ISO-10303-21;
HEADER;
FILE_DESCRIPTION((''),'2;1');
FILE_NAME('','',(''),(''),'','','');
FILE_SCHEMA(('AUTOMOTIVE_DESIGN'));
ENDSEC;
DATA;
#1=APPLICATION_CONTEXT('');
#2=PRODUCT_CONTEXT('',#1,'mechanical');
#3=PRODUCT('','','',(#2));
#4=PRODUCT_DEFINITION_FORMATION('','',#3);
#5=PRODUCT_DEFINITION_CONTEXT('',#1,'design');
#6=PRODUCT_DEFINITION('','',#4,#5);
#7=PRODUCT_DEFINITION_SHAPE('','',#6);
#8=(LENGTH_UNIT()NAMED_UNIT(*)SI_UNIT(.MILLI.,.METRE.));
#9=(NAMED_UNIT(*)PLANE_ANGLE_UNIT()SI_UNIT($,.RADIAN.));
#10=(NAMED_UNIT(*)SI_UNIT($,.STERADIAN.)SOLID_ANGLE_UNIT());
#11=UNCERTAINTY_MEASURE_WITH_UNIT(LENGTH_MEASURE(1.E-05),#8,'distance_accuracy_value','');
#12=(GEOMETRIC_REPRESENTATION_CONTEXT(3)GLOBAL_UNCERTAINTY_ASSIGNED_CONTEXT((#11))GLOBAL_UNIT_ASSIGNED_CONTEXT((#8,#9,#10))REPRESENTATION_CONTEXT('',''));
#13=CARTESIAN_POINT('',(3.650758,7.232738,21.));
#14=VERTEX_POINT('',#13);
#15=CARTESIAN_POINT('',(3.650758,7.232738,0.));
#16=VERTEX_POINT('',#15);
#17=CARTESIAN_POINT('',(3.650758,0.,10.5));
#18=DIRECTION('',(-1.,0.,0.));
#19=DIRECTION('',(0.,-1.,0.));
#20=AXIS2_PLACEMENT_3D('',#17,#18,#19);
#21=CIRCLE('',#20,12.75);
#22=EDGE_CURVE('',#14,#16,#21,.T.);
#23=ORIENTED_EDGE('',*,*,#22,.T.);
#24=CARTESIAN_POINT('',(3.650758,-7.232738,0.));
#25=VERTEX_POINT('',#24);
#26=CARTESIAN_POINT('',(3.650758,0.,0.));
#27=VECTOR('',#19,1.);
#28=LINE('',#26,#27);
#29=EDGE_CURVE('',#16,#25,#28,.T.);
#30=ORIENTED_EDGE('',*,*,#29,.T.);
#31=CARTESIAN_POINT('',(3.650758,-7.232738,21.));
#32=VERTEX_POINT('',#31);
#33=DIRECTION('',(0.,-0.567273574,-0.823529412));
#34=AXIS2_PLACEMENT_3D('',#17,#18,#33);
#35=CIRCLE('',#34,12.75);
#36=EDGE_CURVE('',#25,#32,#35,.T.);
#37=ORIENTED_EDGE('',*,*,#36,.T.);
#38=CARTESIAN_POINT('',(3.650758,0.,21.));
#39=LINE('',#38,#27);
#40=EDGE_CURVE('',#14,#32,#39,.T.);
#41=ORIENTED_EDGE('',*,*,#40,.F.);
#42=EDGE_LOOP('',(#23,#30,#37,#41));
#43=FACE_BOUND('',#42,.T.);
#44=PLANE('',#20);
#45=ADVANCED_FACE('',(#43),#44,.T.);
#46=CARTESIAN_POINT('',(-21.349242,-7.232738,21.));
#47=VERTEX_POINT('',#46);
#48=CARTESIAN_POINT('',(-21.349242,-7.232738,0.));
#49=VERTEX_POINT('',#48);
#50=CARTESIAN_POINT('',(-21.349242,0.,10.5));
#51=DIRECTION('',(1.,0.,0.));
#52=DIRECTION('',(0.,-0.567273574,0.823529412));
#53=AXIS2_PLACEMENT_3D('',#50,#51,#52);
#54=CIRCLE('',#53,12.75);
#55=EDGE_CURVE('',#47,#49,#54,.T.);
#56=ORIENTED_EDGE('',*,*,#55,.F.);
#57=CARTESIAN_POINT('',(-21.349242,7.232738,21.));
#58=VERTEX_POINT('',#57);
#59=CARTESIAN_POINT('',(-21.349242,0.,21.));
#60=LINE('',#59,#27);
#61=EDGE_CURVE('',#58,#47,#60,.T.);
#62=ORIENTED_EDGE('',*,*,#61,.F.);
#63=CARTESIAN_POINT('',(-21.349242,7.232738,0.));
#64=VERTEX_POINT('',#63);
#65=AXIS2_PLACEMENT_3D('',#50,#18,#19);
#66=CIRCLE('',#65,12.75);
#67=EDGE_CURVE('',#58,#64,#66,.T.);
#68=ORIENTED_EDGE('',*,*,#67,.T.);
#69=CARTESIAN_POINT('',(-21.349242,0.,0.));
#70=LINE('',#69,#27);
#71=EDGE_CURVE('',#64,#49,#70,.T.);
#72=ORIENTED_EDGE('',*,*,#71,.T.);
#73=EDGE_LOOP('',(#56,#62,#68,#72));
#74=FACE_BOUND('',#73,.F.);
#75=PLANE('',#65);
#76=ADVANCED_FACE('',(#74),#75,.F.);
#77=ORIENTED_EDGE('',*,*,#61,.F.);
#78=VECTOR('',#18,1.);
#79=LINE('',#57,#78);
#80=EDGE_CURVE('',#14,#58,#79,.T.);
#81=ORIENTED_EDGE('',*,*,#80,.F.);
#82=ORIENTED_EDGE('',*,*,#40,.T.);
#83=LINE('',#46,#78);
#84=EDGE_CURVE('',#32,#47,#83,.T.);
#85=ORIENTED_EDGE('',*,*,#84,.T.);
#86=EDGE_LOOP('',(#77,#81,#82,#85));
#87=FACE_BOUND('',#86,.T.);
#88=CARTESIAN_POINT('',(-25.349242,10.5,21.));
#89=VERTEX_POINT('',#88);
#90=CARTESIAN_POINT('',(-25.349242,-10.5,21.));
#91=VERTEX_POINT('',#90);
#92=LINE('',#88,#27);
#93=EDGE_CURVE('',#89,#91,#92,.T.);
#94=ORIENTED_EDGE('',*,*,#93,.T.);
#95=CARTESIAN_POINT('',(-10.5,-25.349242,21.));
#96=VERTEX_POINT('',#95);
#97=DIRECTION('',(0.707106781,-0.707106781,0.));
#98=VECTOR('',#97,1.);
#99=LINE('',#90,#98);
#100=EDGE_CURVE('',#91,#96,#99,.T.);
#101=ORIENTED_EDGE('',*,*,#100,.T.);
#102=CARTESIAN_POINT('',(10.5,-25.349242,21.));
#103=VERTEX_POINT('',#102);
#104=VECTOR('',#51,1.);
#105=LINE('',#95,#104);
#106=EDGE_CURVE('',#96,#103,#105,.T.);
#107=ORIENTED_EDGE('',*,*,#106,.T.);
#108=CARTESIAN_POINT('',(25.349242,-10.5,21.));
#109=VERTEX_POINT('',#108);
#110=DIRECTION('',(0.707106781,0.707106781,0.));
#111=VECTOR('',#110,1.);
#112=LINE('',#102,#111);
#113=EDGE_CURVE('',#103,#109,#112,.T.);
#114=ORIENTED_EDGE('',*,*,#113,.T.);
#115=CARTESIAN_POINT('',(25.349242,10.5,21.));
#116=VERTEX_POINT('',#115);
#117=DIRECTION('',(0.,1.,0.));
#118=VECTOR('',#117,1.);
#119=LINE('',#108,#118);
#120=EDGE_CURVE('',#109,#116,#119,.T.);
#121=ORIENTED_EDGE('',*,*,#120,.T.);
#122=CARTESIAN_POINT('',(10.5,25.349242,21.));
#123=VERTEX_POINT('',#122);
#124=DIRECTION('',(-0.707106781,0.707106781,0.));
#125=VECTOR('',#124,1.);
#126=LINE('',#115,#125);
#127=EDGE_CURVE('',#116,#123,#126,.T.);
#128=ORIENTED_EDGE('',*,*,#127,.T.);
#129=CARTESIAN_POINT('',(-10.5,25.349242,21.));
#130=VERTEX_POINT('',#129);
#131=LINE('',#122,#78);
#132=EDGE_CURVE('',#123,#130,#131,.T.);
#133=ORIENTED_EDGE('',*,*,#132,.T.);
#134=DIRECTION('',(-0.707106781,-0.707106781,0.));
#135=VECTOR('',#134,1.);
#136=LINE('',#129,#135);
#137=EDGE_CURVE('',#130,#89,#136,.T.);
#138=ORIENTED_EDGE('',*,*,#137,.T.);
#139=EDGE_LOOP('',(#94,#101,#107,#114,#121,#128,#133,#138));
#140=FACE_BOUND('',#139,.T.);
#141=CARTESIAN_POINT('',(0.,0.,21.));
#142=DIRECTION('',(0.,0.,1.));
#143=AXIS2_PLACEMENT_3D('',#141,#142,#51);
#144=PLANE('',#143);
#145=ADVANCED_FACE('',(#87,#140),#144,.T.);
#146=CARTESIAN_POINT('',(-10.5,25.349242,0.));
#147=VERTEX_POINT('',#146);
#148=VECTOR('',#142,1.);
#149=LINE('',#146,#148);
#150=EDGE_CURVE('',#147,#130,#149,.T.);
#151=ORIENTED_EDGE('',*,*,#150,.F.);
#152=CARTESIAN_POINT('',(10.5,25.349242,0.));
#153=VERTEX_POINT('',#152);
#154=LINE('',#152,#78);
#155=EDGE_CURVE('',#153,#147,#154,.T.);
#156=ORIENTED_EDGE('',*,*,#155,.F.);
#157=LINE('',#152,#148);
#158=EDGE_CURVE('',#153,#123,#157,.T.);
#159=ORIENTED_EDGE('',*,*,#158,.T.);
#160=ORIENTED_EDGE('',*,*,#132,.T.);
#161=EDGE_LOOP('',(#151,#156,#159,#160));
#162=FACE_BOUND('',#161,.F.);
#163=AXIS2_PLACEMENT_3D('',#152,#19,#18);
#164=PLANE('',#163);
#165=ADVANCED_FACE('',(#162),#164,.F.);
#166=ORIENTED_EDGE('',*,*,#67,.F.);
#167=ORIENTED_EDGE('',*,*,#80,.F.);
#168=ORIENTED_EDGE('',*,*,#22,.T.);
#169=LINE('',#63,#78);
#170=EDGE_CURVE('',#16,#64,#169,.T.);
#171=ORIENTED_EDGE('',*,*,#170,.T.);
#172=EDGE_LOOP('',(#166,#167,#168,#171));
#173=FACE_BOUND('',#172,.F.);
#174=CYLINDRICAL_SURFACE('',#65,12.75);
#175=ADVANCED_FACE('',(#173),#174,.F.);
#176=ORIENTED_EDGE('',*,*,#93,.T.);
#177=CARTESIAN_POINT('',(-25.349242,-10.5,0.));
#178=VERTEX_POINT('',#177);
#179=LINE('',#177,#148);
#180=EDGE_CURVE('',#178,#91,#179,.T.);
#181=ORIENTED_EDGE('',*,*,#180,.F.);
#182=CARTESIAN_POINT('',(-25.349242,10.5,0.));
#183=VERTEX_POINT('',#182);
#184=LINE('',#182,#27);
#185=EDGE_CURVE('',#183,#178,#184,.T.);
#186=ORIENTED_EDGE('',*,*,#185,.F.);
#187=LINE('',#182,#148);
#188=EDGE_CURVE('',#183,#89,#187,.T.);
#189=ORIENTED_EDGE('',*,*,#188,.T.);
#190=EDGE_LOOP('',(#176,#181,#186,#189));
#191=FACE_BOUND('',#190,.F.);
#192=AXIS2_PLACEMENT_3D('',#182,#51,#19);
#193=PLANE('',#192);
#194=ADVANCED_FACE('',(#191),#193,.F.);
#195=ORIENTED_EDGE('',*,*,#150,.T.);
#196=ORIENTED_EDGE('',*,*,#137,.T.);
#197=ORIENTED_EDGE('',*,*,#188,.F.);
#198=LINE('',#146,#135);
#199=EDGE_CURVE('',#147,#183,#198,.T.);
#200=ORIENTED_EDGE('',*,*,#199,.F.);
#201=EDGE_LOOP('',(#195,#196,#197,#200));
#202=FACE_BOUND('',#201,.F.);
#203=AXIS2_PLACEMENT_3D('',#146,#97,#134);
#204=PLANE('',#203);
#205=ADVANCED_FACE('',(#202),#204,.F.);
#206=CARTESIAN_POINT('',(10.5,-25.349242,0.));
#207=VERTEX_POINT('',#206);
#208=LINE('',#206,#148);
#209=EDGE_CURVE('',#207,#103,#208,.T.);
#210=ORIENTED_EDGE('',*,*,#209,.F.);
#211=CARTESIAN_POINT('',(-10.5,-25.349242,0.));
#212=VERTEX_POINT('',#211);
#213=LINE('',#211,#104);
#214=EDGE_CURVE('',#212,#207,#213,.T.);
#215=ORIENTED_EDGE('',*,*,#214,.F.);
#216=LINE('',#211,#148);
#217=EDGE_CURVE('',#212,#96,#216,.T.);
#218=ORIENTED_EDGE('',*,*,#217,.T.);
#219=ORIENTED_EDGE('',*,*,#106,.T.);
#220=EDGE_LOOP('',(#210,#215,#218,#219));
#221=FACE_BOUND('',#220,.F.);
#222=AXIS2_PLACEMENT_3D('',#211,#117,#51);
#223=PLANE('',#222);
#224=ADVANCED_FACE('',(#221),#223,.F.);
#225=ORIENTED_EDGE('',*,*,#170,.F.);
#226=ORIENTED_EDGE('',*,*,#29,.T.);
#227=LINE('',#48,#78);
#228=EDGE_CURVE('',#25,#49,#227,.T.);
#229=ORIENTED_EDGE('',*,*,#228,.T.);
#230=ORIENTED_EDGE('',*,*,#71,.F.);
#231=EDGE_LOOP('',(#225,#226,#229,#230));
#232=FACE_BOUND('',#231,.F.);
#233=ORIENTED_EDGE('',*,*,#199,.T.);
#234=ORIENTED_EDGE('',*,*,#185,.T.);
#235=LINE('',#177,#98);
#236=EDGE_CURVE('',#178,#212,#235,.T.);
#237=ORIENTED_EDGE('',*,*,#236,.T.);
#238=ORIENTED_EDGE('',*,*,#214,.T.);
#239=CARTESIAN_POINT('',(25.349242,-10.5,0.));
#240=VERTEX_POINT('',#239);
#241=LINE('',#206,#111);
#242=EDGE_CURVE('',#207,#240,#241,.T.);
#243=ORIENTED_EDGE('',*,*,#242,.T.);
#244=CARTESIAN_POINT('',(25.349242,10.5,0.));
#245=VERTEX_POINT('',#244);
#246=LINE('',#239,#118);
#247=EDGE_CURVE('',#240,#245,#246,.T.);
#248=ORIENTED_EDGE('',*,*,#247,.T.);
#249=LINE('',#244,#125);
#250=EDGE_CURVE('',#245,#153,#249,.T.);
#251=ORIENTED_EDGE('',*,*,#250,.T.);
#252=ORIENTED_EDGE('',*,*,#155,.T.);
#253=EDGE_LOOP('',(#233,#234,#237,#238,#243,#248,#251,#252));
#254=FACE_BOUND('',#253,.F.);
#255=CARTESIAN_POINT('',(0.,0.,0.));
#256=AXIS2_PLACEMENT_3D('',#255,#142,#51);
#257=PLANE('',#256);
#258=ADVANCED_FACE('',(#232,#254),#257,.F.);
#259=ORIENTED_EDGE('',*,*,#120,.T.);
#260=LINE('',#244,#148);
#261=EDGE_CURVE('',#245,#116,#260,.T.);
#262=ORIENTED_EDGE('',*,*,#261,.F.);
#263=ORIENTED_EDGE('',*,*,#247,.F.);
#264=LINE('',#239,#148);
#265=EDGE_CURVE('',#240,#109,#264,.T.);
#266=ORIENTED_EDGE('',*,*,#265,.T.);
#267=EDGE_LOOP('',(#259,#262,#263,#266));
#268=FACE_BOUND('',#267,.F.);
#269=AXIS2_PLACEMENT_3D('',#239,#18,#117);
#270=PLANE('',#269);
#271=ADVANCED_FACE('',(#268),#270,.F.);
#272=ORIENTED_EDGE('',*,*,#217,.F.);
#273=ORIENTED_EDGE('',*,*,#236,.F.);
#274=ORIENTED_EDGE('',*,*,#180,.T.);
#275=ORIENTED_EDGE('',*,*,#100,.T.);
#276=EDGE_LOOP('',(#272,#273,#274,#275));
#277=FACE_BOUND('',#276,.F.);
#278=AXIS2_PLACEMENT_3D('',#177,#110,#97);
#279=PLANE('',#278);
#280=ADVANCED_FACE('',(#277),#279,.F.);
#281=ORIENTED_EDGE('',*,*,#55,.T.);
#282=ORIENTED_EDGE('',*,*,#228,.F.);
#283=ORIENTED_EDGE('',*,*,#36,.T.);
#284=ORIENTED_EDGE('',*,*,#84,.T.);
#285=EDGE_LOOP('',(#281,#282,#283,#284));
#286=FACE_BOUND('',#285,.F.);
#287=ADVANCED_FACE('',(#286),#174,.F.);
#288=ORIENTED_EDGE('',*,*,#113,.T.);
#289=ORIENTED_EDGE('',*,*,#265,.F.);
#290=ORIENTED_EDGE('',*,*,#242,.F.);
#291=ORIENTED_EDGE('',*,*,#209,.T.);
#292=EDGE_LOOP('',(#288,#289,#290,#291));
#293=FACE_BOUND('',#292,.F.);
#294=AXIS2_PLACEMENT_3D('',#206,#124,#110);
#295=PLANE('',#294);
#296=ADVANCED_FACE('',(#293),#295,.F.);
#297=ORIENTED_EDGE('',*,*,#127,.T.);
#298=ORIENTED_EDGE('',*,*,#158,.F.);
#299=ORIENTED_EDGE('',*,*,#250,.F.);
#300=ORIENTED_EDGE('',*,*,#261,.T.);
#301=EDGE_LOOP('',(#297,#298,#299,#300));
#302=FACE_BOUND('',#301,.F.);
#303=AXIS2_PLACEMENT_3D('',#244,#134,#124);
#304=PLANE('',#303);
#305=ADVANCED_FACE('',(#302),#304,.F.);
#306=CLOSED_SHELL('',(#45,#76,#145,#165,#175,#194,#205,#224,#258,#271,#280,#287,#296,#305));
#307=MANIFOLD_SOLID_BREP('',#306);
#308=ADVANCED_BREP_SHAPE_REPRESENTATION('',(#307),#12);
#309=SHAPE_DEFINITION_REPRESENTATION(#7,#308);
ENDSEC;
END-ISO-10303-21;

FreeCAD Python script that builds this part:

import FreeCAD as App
import Part
import Sketcher


def add_polygon(sketch, points):
    """Adds a closed chain of lines whose ends are joined by coincident constraints."""
    first, n = sketch.GeometryCount, len(points)
    for a, b in zip(points, points[1:] + points[:1]):
        sketch.addGeometry(Part.LineSegment(App.Vector(*a, 0), App.Vector(*b, 0)), False)
    for i in range(n):
        sketch.addConstraint(Sketcher.Constraint("Coincident", first + i, 2, first + (i + 1) % n, 1))

doc = App.newDocument("Part")
params = doc.addObject("Spreadsheet::Sheet", "Params")
for row, (alias, value) in enumerate([
    ("sketch1_width", "21 mm"),
    ("sketch1_length", "21 mm"),
    ("pad1_length", "21 mm"),
    ("sketch2_diameter", "25.5 mm"),
    ("pocket1_length", "25 mm"),
], start=1):
    params.set(f"A{row}", alias)
    params.set(f"B{row}", "=" + value)
    params.setAlias(f"B{row}", alias)

body = doc.addObject("PartDesign::Body", "Body")

# Sketch on XY plane
sketch1 = body.newObject("Sketcher::SketchObject", "Sketch")
sketch1.AttachmentSupport = (doc.getObject("XY_Plane"), [""])
sketch1.MapMode = "FlatFace"
add_polygon(sketch1, [(25, -10), (25, 10), (10, 25), (-10, 25), (-25, 10), (-25, -10), (-10, -25), (10, -25)])  # lines 0-7
sketch1.addConstraint([
    Sketcher.Constraint("Vertical", 0),
    Sketcher.Constraint("Horizontal", 2),
    Sketcher.Constraint("Vertical", 4),
    Sketcher.Constraint("Horizontal", 6),
    Sketcher.Constraint("Symmetric", 0, 2, 4, 2, -1, 1),
    Sketcher.Constraint("Symmetric", 1, 2, 5, 2, -1, 1),
    Sketcher.Constraint("Perpendicular", 1, 3),
    Sketcher.Constraint("Perpendicular", 5, 7),
    Sketcher.Constraint("Horizontal", 0, 2, 3, 2),
    Sketcher.Constraint("Horizontal", 4, 2, 7, 2),
    Sketcher.Constraint("Vertical", 2, 2, 5, 2),
    Sketcher.Constraint("Equal", 6, 0),
    Sketcher.Constraint("DistanceX", 2, 2, 2, 1, 21.0),
    Sketcher.Constraint("Distance", 1, 21.0),
])
sketch1.setExpression("Constraints[20]", "Params.sketch1_width")
sketch1.setExpression("Constraints[21]", "Params.sketch1_length")
pad1 = body.newObject("PartDesign::Pad", "Pad")
pad1.Profile = sketch1
pad1.setExpression("Length", "Params.pad1_length")

# Sketch on YZ plane
sketch2 = body.newObject("Sketcher::SketchObject", "Sketch001")
sketch2.AttachmentSupport = (doc.getObject("YZ_Plane"), [""])
sketch2.MapMode = "FlatFace"
sketch2.AttachmentOffset = App.Placement(App.Vector(0, 0, -21.349242), App.Rotation())
sketch2.addGeometry(Part.Circle(App.Vector(0, 10, 0), App.Vector(0, 0, 1), 13), False)
sketch2.addConstraint([
    Sketcher.Constraint("PointOnObject", 0, 3, -2),
    Sketcher.Constraint("Diameter", 0, 25.5),
    Sketcher.Constraint("DistanceY", -1, 1, 0, 3, 10.5),
])
sketch2.setExpression("Constraints[1]", "Params.sketch2_diameter")
pocket1 = body.newObject("PartDesign::Pocket", "Pocket")
pocket1.Profile = sketch2
pocket1.setExpression("Length", "Params.pocket1_length")
pocket1.Reversed = True

doc.recompute()
